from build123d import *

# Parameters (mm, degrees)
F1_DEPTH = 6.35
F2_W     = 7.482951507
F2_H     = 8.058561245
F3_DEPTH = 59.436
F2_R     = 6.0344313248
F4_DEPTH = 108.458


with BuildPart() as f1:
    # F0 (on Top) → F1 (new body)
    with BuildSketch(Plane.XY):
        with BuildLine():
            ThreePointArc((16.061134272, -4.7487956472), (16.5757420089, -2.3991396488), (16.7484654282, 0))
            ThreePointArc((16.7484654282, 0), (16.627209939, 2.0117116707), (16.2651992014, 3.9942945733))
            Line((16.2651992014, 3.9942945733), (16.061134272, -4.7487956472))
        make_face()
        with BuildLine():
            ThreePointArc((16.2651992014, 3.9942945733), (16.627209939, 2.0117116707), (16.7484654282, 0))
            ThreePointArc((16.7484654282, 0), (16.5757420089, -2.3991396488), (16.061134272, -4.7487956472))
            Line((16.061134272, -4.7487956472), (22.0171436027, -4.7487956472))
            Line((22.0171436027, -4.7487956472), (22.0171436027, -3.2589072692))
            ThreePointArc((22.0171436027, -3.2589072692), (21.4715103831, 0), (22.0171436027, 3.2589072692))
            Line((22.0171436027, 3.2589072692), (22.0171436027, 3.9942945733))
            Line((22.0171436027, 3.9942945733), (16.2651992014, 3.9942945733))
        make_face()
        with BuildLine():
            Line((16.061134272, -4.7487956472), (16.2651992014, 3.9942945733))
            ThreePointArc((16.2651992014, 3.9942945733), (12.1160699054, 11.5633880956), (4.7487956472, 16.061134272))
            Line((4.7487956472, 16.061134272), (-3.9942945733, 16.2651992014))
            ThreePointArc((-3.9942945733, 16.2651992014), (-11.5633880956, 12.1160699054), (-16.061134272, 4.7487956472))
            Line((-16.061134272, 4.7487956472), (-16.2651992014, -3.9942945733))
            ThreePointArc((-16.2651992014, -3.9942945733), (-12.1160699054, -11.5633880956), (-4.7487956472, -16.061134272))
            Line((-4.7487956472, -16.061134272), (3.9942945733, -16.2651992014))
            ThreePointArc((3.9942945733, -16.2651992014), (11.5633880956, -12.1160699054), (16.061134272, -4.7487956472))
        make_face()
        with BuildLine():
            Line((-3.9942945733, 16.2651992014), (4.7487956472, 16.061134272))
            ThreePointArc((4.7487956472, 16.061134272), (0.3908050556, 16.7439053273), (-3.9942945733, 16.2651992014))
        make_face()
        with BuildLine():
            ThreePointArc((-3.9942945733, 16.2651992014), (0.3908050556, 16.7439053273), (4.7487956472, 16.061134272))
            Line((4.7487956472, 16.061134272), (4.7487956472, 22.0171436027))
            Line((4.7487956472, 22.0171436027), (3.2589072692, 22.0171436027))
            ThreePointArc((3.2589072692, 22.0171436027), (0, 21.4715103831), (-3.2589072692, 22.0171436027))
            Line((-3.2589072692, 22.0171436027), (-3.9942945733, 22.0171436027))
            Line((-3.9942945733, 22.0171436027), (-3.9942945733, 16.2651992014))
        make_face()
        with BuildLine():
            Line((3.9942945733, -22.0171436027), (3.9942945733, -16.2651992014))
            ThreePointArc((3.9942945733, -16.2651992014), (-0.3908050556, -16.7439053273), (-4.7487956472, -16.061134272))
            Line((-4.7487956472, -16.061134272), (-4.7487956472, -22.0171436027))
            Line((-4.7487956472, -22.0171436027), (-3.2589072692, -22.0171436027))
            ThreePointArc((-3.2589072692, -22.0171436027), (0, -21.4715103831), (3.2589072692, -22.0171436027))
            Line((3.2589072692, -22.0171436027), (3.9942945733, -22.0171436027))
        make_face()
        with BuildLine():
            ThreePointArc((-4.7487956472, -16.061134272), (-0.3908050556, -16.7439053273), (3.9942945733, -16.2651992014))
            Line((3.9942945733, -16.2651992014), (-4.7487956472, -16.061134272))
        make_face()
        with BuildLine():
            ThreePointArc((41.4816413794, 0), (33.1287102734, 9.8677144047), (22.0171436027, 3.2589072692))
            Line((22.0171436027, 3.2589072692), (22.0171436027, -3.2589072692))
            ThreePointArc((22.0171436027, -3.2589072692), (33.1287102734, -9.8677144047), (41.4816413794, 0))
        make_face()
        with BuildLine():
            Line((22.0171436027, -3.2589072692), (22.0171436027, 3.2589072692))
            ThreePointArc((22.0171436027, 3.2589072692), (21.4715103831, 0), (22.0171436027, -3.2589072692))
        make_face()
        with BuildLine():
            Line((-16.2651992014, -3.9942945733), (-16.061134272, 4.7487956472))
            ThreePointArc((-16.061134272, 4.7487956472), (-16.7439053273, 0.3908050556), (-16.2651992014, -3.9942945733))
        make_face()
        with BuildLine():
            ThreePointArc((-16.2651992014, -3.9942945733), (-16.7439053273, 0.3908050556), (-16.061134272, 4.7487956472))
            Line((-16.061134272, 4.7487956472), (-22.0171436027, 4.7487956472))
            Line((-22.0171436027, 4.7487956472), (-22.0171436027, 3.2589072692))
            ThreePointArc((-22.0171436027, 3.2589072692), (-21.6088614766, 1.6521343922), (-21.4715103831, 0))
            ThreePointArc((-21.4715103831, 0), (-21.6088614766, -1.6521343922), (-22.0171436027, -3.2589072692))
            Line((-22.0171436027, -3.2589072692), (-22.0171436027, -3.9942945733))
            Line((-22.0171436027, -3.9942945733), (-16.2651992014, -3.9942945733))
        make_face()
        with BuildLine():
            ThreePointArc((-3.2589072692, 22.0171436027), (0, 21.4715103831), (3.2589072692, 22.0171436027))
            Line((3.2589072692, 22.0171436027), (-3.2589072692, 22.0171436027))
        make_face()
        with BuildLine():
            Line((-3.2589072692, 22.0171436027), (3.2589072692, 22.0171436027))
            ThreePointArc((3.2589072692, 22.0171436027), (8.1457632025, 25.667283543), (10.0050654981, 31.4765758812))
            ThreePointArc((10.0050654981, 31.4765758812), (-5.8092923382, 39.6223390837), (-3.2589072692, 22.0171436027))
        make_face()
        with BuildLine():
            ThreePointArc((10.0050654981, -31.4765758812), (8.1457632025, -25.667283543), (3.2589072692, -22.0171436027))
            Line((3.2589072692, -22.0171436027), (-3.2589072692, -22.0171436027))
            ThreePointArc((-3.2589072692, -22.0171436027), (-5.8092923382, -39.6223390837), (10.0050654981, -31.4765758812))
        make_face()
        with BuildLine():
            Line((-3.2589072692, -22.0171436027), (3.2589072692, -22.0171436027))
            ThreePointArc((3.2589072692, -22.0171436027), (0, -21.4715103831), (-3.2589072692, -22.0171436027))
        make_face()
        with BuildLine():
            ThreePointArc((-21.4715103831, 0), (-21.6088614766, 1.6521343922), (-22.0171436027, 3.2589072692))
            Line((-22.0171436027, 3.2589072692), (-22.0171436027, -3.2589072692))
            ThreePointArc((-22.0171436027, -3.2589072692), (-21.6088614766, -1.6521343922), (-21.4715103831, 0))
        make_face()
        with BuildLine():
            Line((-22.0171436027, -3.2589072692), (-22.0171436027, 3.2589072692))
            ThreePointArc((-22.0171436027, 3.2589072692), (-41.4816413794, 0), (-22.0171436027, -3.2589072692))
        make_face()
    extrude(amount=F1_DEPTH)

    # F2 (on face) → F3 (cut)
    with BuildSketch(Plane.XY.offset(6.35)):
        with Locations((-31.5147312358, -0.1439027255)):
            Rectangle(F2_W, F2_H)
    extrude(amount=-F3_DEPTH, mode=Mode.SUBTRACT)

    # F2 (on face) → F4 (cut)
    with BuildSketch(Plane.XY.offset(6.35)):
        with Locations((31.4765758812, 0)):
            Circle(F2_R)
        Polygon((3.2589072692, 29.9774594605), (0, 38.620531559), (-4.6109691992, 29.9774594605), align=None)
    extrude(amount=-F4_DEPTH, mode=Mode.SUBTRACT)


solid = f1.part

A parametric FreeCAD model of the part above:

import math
import FreeCAD as App
import Part
import Sketcher
from FreeCAD import Vector
Q = App.Units.Quantity


def add_polygon(sketch, points):
    """Adds a closed chain of lines whose ends are joined by coincident constraints."""
    first, n = sketch.GeometryCount, len(points)
    for a, b in zip(points, points[1:] + points[:1]):
        sketch.addGeometry(Part.LineSegment(App.Vector(*a, 0), App.Vector(*b, 0)), False)
    for i in range(n):
        sketch.addConstraint(Sketcher.Constraint("Coincident", first + i, 2, first + (i + 1) % n, 1))

doc = App.newDocument("Part")
body = doc.addObject("PartDesign::Body", "Body")

# Sketch on XY plane
sketch1 = body.newObject("Sketcher::SketchObject", "Sketch")
sketch1.AttachmentSupport = (doc.getObject("XY_Plane"), [""])
sketch1.MapMode = "FlatFace"
sketch1.addGeometry(Part.LineSegment(Vector(16.1, -4.7, 0), Vector(22, -4.7, 0)), False)
sketch1.addGeometry(Part.LineSegment(Vector(22, -4.7, 0), Vector(22, -3.3, 0)), False)
sketch1.addGeometry(Part.ArcOfCircle(Part.Circle(Vector(31.5, 0, 0), Vector(0, 0, 1), 10), math.radians(-161), math.radians(0)), False)
sketch1.addGeometry(Part.ArcOfCircle(Part.Circle(Vector(31.5, 0, 0), Vector(0, 0, 1), 10), math.radians(0), math.radians(161)), False)
sketch1.addGeometry(Part.LineSegment(Vector(22, 3.3, 0), Vector(22, 4, 0)), False)
sketch1.addGeometry(Part.LineSegment(Vector(22, 4, 0), Vector(16.3, 4, 0)), False)
sketch1.addGeometry(Part.ArcOfCircle(Part.Circle(Vector(0, 0, 0), Vector(0, 0, 1), 16.7), math.radians(14), math.radians(74)), False)
sketch1.addGeometry(Part.LineSegment(Vector(4.7, 16.1, 0), Vector(4.7, 22, 0)), False)
sketch1.addGeometry(Part.LineSegment(Vector(4.7, 22, 0), Vector(3.3, 22, 0)), False)
sketch1.addGeometry(Part.ArcOfCircle(Part.Circle(Vector(0, 31.5, 0), Vector(0, 0, 1), 10), math.radians(-71), math.radians(0)), False)
sketch1.addGeometry(Part.ArcOfCircle(Part.Circle(Vector(0, 31.5, 0), Vector(0, 0, 1), 10), math.radians(0), math.radians(251)), False)
sketch1.addGeometry(Part.LineSegment(Vector(-3.3, 22, 0), Vector(-4, 22, 0)), False)
sketch1.addGeometry(Part.LineSegment(Vector(-4, 22, 0), Vector(-4, 16.3, 0)), False)
sketch1.addGeometry(Part.ArcOfCircle(Part.Circle(Vector(0, 0, 0), Vector(0, 0, 1), 16.7), math.radians(104), math.radians(164)), False)
sketch1.addGeometry(Part.LineSegment(Vector(-16.1, 4.7, 0), Vector(-22, 4.7, 0)), False)
sketch1.addGeometry(Part.LineSegment(Vector(-22, 4.7, 0), Vector(-22, 3.3, 0)), False)
sketch1.addGeometry(Part.ArcOfCircle(Part.Circle(Vector(-31.5, 0, 0), Vector(0, 0, 1), 10), math.radians(19), math.radians(341)), False)
sketch1.addGeometry(Part.LineSegment(Vector(-22, -3.3, 0), Vector(-22, -4, 0)), False)
sketch1.addGeometry(Part.LineSegment(Vector(-22, -4, 0), Vector(-16.3, -4, 0)), False)
sketch1.addGeometry(Part.ArcOfCircle(Part.Circle(Vector(0, 0, 0), Vector(0, 0, 1), 16.7), math.radians(-166), math.radians(-106)), False)
sketch1.addGeometry(Part.LineSegment(Vector(-4.7, -16.1, 0), Vector(-4.7, -22, 0)), False)
sketch1.addGeometry(Part.LineSegment(Vector(-4.7, -22, 0), Vector(-3.3, -22, 0)), False)
sketch1.addGeometry(Part.ArcOfCircle(Part.Circle(Vector(0, -31.5, 0), Vector(0, 0, 1), 10), math.radians(109), math.radians(360)), False)
sketch1.addGeometry(Part.ArcOfCircle(Part.Circle(Vector(0, -31.5, 0), Vector(0, 0, 1), 10), math.radians(0), math.radians(71)), False)
sketch1.addGeometry(Part.LineSegment(Vector(3.3, -22, 0), Vector(4, -22, 0)), False)
sketch1.addGeometry(Part.LineSegment(Vector(4, -22, 0), Vector(4, -16.3, 0)), False)
sketch1.addGeometry(Part.ArcOfCircle(Part.Circle(Vector(0, 0, 0), Vector(0, 0, 1), 16.7), math.radians(-76), math.radians(-16)), False)
sketch1.addConstraint(Sketcher.Constraint("Coincident", 0, 2, 1, 1))
sketch1.addConstraint(Sketcher.Constraint("Coincident", 1, 2, 2, 1))
sketch1.addConstraint(Sketcher.Constraint("Tangent", 2, 2, 3, 1))
sketch1.addConstraint(Sketcher.Constraint("Coincident", 3, 2, 4, 1))
sketch1.addConstraint(Sketcher.Constraint("Coincident", 4, 2, 5, 1))
sketch1.addConstraint(Sketcher.Constraint("Coincident", 5, 2, 6, 1))
sketch1.addConstraint(Sketcher.Constraint("Coincident", 6, 2, 7, 1))
sketch1.addConstraint(Sketcher.Constraint("Coincident", 7, 2, 8, 1))
sketch1.addConstraint(Sketcher.Constraint("Coincident", 8, 2, 9, 1))
sketch1.addConstraint(Sketcher.Constraint("Tangent", 9, 2, 10, 1))
sketch1.addConstraint(Sketcher.Constraint("Coincident", 10, 2, 11, 1))
sketch1.addConstraint(Sketcher.Constraint("Coincident", 11, 2, 12, 1))
sketch1.addConstraint(Sketcher.Constraint("Coincident", 12, 2, 13, 1))
sketch1.addConstraint(Sketcher.Constraint("Coincident", 13, 2, 14, 1))
sketch1.addConstraint(Sketcher.Constraint("Coincident", 14, 2, 15, 1))
sketch1.addConstraint(Sketcher.Constraint("Coincident", 15, 2, 16, 1))
sketch1.addConstraint(Sketcher.Constraint("Coincident", 16, 2, 17, 1))
sketch1.addConstraint(Sketcher.Constraint("Coincident", 17, 2, 18, 1))
sketch1.addConstraint(Sketcher.Constraint("Coincident", 18, 2, 19, 1))
sketch1.addConstraint(Sketcher.Constraint("Coincident", 19, 2, 20, 1))
sketch1.addConstraint(Sketcher.Constraint("Coincident", 20, 2, 21, 1))
sketch1.addConstraint(Sketcher.Constraint("Coincident", 21, 2, 22, 1))
sketch1.addConstraint(Sketcher.Constraint("Tangent", 22, 2, 23, 1))
sketch1.addConstraint(Sketcher.Constraint("Coincident", 23, 2, 24, 1))
sketch1.addConstraint(Sketcher.Constraint("Coincident", 24, 2, 25, 1))
sketch1.addConstraint(Sketcher.Constraint("Coincident", 25, 2, 26, 1))
sketch1.addConstraint(Sketcher.Constraint("Coincident", 26, 2, 0, 1))
sketch1.addConstraint(Sketcher.Constraint("Horizontal", 0))
sketch1.addConstraint(Sketcher.Constraint("Vertical", 1))
sketch1.addConstraint(Sketcher.Constraint("Vertical", 4))
sketch1.addConstraint(Sketcher.Constraint("Horizontal", 5))
sketch1.addConstraint(Sketcher.Constraint("Vertical", 7))
sketch1.addConstraint(Sketcher.Constraint("Horizontal", 8))
sketch1.addConstraint(Sketcher.Constraint("Horizontal", 11))
sketch1.addConstraint(Sketcher.Constraint("Vertical", 12))
sketch1.addConstraint(Sketcher.Constraint("Horizontal", 14))
sketch1.addConstraint(Sketcher.Constraint("Vertical", 15))
sketch1.addConstraint(Sketcher.Constraint("Vertical", 17))
sketch1.addConstraint(Sketcher.Constraint("Horizontal", 18))
sketch1.addConstraint(Sketcher.Constraint("Vertical", 20))
sketch1.addConstraint(Sketcher.Constraint("Horizontal", 21))
sketch1.addConstraint(Sketcher.Constraint("Horizontal", 24))
sketch1.addConstraint(Sketcher.Constraint("Vertical", 25))
sketch1.addConstraint(Sketcher.Constraint("Coincident", 6, 3, -1, 1))
sketch1.addConstraint(Sketcher.Constraint("Coincident", 13, 3, -1, 1))
sketch1.addConstraint(Sketcher.Constraint("Coincident", 19, 3, -1, 1))
sketch1.addConstraint(Sketcher.Constraint("Coincident", 26, 3, -1, 1))
sketch1.addConstraint(Sketcher.Constraint("Equal", 2, 3))
sketch1.addConstraint(Sketcher.Constraint("Equal", 3, 9))
sketch1.addConstraint(Sketcher.Constraint("Equal", 9, 10))
sketch1.addConstraint(Sketcher.Constraint("Equal", 6, 13))
sketch1.addConstraint(Sketcher.Constraint("Equal", 10, 16))
sketch1.addConstraint(Sketcher.Constraint("Equal", 13, 19))
sketch1.addConstraint(Sketcher.Constraint("Equal", 16, 22))
sketch1.addConstraint(Sketcher.Constraint("Equal", 22, 23))
sketch1.addConstraint(Sketcher.Constraint("Equal", 19, 26))
sketch1.addConstraint(Sketcher.Constraint("Symmetric", 2, 3, 16, 3, -1, 1))
sketch1.addConstraint(Sketcher.Constraint("Symmetric", 9, 3, 22, 3, -1, 1))
sketch1.addConstraint(Sketcher.Constraint("Symmetric", 0, 2, 14, 2, -1, 1))
sketch1.addConstraint(Sketcher.Constraint("Symmetric", 4, 2, 17, 2, -1, 1))
sketch1.addConstraint(Sketcher.Constraint("Symmetric", 7, 2, 20, 2, -1, 1))
sketch1.addConstraint(Sketcher.Constraint("Symmetric", 11, 2, 24, 2, -1, 1))
sketch1.addConstraint(Sketcher.Constraint("Symmetric", 8, 2, 10, 2, -2))
sketch1.addConstraint(Sketcher.Constraint("Symmetric", 3, 2, 15, 2, -2))
sketch1.addConstraint(Sketcher.Constraint("PointOnObject", 2, 2, -1))
sketch1.addConstraint(Sketcher.Constraint("Horizontal", 10, 3, 9, 2))
sketch1.addConstraint(Sketcher.Constraint("Horizontal", 23, 3, 22, 2))
sketch1.addConstraint(Sketcher.Constraint("Equal", 21, 1))
sketch1.addConstraint(Sketcher.Constraint("Equal", 24, 4))
sketch1.addConstraint(Sketcher.Constraint("Equal", 14, 7))
sketch1.addConstraint(Sketcher.Constraint("Equal", 18, 12))
sketch1.addConstraint(Sketcher.Constraint("Radius", 2, 10.005065))
sketch1.addConstraint(Sketcher.Constraint("Radius", 6, 16.748465))
sketch1.addConstraint(Sketcher.Constraint("DistanceX", 0, 1, 0, 2, 5.956009))
sketch1.addConstraint(Sketcher.Constraint("DistanceX", 8, 2, 8, 1, 1.489888))
sketch1.addConstraint(Sketcher.Constraint("DistanceX", -1, 1, 5, 2, 16.265199))
sketch1.addConstraint(Sketcher.Constraint("DistanceY", 1, 2, 4, 2, 7.253202))
pad1 = body.newObject("PartDesign::Pad", "Pad")
pad1.Profile = sketch1
pad1.Length = Q("0.25 in")

# Sketch on XY plane
sketch2 = body.newObject("Sketcher::SketchObject", "Sketch001")
sketch2.AttachmentSupport = (doc.getObject("XY_Plane"), [""])
sketch2.MapMode = "FlatFace"
sketch2.AttachmentOffset = App.Placement(Vector(0, 0, 0.25 * 25.4), App.Rotation())
add_polygon(sketch2, [(-35, 4), (-35, -4), (-28, -4), (-28, 4)])  # lines 0-3
sketch2.addConstraint(Sketcher.Constraint("Vertical", 0))
sketch2.addConstraint(Sketcher.Constraint("Horizontal", 1))
sketch2.addConstraint(Sketcher.Constraint("Vertical", 2))
sketch2.addConstraint(Sketcher.Constraint("Horizontal", 3))
sketch2.addConstraint(Sketcher.Constraint("DistanceX", 1, 1, 1, 2, 7.482952))
sketch2.addConstraint(Sketcher.Constraint("DistanceY", 0, 2, 0, 1, 8.058561))
sketch2.addConstraint(Sketcher.Constraint("DistanceX", 0, 2, -1, 1, 35.256207))
sketch2.addConstraint(Sketcher.Constraint("DistanceY", 0, 2, -1, 1, 4.173183))
pocket1 = body.newObject("PartDesign::Pocket", "Pocket")
pocket1.Profile = sketch2
pocket1.Length = Q("2.34 in")

# Sketch on XY plane
sketch3 = body.newObject("Sketcher::SketchObject", "Sketch002")
sketch3.AttachmentSupport = (doc.getObject("XY_Plane"), [""])
sketch3.MapMode = "FlatFace"
sketch3.AttachmentOffset = App.Placement(Vector(0, 0, 0.25 * 25.4), App.Rotation())
sketch3.addGeometry(Part.Circle(Vector(31, 0, 0), Vector(0, 0, 1), 6), False)  # 0
add_polygon(sketch3, [(3, 30), (0, 39), (-5, 30)])  # lines 1-3
sketch3.addConstraint(Sketcher.Constraint("Horizontal", 3))
sketch3.addConstraint(Sketcher.Constraint("PointOnObject", 0, 3, -1))
sketch3.addConstraint(Sketcher.Constraint("PointOnObject", 1, 2, -2))
sketch3.addConstraint(Sketcher.Constraint("Diameter", 0, 12.068863))
sketch3.addConstraint(Sketcher.Constraint("Distance", 2, 9.796108))
sketch3.addConstraint(Sketcher.Constraint("DistanceX", 3, 1, 3, 2, 7.869876))
sketch3.addConstraint(Sketcher.Constraint("DistanceY", -1, 1, 1, 2, 38.620532))
sketch3.addConstraint(Sketcher.Constraint("DistanceX", 2, 2, -1, 1, 4.610969))
sketch3.addConstraint(Sketcher.Constraint("DistanceX", 3, 2, 0, 3, 28.217669))
pocket2 = body.newObject("PartDesign::Pocket", "Pocket001")
pocket2.Profile = sketch3
pocket2.Length = Q("4.27 in")

doc.recompute()
